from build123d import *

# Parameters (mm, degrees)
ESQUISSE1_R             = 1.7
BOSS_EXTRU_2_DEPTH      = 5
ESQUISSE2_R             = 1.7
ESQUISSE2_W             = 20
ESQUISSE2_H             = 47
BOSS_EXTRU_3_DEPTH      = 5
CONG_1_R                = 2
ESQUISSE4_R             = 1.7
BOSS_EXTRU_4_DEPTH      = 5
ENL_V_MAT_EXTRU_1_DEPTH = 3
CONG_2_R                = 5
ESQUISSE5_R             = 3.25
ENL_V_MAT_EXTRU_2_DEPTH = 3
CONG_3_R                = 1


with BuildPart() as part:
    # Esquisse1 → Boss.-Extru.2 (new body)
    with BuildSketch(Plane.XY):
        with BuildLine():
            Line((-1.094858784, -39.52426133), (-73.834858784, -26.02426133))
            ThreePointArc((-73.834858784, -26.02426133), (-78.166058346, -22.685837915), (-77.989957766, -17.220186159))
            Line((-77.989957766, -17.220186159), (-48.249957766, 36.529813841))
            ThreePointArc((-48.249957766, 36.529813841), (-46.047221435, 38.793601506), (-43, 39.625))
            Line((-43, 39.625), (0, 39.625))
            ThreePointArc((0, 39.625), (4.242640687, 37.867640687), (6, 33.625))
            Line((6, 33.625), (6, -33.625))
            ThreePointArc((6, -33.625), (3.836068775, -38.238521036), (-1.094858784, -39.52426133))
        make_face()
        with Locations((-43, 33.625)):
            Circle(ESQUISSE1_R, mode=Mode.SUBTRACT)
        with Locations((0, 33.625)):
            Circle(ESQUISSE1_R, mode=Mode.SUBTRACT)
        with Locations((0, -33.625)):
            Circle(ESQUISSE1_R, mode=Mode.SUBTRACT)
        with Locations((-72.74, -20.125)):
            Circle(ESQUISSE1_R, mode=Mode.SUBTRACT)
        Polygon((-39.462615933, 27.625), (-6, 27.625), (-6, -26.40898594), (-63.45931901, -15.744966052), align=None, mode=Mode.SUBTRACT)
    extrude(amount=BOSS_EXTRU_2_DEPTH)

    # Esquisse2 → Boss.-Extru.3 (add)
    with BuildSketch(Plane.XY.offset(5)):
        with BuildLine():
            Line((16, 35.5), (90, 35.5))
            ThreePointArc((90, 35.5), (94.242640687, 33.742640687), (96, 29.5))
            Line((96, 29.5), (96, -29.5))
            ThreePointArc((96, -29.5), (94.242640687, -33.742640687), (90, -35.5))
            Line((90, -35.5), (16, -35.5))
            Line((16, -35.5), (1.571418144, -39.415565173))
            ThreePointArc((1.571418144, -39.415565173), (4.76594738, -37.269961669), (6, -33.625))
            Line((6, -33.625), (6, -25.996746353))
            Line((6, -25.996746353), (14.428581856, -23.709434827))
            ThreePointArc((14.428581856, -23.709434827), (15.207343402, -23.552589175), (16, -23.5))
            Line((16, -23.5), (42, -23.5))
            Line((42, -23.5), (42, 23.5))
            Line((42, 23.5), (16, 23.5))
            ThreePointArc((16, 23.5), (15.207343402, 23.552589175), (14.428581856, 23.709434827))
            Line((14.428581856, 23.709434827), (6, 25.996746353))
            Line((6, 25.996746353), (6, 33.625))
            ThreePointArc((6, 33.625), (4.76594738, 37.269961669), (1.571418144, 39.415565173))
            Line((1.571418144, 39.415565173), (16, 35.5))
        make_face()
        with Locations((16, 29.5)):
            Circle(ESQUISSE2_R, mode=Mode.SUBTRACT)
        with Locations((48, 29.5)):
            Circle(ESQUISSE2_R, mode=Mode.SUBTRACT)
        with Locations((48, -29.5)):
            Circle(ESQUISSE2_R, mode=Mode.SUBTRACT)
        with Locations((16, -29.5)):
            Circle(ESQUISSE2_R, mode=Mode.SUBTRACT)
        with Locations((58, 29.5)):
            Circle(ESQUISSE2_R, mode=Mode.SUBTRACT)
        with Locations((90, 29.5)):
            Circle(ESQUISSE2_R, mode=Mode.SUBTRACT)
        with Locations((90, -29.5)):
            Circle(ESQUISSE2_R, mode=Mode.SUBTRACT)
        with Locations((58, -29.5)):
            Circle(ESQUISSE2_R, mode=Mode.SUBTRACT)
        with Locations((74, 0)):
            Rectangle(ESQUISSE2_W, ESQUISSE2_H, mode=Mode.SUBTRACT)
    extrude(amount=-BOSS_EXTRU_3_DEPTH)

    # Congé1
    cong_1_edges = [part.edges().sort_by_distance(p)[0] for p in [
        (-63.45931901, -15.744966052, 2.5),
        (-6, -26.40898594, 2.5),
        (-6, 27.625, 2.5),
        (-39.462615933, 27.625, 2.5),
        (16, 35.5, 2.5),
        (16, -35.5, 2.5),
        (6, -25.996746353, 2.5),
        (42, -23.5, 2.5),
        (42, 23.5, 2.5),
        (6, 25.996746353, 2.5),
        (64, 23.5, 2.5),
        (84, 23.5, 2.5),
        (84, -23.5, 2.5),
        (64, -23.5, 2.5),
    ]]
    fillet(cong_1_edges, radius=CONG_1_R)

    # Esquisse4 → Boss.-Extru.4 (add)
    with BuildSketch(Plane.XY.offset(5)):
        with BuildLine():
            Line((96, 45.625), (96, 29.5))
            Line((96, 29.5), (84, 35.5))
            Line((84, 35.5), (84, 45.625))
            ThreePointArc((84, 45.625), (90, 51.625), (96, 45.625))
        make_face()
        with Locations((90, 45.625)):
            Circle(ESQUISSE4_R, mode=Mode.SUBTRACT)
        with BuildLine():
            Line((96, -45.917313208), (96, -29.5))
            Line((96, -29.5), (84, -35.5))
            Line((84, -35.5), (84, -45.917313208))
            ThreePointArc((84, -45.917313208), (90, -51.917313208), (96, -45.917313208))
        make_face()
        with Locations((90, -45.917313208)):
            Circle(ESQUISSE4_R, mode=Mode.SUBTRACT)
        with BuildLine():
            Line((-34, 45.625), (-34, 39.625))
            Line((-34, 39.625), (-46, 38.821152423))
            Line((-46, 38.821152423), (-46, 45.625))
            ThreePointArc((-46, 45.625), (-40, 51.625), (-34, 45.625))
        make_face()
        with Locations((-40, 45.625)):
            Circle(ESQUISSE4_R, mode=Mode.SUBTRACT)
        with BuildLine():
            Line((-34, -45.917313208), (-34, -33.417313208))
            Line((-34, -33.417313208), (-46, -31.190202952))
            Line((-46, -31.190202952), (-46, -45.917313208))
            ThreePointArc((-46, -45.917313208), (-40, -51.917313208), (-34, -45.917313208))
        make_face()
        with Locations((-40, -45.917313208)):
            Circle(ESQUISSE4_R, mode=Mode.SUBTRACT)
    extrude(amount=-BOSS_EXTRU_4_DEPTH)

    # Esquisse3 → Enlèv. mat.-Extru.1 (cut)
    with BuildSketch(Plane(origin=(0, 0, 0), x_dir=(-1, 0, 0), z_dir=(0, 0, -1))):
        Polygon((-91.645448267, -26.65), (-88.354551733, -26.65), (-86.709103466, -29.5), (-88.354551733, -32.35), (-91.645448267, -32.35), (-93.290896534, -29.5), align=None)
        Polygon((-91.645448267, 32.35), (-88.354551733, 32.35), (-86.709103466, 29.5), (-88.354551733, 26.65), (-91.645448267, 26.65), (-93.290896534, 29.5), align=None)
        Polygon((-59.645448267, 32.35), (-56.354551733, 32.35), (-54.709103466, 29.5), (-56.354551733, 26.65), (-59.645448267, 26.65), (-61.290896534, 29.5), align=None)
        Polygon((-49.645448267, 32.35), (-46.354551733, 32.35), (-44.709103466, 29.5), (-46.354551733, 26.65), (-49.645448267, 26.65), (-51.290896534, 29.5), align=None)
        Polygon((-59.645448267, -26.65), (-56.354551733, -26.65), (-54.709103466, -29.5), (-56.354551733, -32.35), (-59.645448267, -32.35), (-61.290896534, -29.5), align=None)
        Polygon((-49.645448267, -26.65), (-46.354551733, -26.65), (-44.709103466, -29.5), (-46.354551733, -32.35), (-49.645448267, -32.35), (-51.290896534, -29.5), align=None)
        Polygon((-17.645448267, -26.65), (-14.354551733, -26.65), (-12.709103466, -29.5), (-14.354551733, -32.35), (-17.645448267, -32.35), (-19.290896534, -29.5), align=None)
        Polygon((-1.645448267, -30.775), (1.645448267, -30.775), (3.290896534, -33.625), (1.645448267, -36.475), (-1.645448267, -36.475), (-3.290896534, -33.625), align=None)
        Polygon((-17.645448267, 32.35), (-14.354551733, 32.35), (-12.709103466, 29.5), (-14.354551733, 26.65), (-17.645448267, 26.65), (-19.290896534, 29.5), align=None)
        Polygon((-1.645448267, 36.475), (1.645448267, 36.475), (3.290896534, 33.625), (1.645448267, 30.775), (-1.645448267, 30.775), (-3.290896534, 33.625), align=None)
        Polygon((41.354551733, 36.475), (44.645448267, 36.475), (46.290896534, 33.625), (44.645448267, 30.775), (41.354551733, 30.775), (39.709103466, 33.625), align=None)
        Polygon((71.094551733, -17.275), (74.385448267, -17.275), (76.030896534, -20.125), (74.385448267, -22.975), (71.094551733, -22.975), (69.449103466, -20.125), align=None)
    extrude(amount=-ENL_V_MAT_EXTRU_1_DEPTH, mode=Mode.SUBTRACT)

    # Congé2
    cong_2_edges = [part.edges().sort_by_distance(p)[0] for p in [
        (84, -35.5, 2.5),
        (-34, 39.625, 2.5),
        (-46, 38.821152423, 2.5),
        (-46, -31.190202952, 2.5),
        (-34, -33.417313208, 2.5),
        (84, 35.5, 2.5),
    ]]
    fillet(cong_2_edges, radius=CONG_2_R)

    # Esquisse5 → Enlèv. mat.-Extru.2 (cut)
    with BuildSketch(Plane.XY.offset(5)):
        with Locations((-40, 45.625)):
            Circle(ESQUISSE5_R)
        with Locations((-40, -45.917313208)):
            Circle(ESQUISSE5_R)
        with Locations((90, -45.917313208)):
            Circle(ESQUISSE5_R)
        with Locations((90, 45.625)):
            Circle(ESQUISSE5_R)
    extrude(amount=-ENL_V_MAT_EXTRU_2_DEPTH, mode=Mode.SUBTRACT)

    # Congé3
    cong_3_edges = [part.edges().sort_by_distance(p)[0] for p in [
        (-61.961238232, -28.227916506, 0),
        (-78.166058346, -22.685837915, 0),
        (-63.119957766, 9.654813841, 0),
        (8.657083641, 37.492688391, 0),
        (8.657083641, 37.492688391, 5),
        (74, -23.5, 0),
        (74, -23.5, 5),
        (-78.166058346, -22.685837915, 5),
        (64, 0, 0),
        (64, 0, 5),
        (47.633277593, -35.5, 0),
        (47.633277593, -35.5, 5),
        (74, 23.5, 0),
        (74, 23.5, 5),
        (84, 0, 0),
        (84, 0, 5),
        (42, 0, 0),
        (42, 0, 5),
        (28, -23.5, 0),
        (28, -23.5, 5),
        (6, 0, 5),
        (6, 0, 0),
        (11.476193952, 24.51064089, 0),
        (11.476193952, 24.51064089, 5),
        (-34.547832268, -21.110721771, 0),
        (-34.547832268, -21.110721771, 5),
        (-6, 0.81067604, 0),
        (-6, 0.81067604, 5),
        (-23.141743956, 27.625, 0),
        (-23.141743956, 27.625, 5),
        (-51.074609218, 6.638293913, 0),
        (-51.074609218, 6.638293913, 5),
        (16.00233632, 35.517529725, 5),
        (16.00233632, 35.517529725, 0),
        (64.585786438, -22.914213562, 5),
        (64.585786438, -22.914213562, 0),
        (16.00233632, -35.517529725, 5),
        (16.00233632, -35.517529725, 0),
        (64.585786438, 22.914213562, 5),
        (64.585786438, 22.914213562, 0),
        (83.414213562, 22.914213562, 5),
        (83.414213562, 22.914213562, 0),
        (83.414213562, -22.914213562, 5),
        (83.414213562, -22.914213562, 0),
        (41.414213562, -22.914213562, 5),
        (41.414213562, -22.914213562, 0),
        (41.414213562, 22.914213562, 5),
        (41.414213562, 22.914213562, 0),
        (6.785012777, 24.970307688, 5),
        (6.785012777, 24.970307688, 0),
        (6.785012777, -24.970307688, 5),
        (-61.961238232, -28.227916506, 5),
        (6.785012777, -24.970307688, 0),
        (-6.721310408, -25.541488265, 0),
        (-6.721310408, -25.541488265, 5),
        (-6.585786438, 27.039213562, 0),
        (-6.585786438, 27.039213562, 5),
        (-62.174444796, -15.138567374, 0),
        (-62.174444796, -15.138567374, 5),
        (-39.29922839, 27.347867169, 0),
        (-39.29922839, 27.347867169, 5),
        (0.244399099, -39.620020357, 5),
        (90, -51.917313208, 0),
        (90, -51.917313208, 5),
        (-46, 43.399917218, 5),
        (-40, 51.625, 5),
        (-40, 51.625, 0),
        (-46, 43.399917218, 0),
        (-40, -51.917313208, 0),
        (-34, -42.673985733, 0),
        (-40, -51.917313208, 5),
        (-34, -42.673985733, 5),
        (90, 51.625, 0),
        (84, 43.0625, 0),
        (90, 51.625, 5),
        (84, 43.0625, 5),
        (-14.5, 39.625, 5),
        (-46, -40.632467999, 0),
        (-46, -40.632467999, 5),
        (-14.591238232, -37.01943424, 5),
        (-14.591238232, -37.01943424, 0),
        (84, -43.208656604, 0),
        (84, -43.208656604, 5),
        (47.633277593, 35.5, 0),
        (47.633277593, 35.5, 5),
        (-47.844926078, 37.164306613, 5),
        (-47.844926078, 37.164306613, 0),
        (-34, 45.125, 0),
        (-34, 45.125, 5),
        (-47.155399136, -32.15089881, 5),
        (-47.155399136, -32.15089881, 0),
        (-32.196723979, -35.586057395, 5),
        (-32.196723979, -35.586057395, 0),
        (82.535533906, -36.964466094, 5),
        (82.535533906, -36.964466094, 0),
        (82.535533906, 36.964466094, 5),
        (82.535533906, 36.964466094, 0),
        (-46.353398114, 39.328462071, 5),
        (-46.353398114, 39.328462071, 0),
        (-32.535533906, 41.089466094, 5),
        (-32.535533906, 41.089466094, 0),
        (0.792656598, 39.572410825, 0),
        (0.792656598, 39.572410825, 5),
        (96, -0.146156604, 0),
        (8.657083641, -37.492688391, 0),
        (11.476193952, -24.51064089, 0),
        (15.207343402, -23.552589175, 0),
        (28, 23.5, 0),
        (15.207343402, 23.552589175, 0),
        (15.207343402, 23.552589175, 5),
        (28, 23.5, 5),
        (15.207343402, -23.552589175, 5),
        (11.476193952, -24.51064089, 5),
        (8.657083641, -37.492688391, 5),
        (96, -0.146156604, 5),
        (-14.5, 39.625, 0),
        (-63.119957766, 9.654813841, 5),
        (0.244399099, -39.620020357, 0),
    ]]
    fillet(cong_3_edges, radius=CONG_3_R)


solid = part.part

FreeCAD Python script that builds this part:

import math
import FreeCAD as App
import Part
import Sketcher

V = App.Vector
Q = App.Units.Quantity


def edges_at(feature, points):
    """Names of the edges that pass closest to the given points."""
    edges = feature.Shape.Edges
    near = lambda p: min(range(len(edges)), key=lambda i: edges[i].distToShape(Part.Vertex(*p))[0])
    return sorted({f"Edge{near(p) + 1}" for p in points})

doc = App.newDocument("Part")
body = doc.addObject("PartDesign::Body", "Body")

sketch1 = body.newObject("Sketcher::SketchObject", "Sketch")
sketch1.AttachmentSupport = (doc.getObject("XY_Plane"), [""])
sketch1.MapMode = "FlatFace"
sketch1.addGeometry([
    Part.LineSegment(V(-73.834859, -26.024261, 0), V(-1.094859, -39.524261, 0)),
    Part.ArcOfCircle(Part.Circle(V(0, -33.625, 0), V(0, 0, 1), 6), math.radians(-100.51404), math.radians(0)),
    Part.LineSegment(V(6, -33.625, 0), V(6, 33.625, 0)),
    Part.ArcOfCircle(Part.Circle(V(0, 33.625, 0), V(0, 0, 1), 6), math.radians(0), math.radians(90)),
    Part.LineSegment(V(0, 39.625, 0), V(-43, 39.625, 0)),
    Part.ArcOfCircle(Part.Circle(V(-43, 33.625, 0), V(0, 0, 1), 6), math.radians(90), math.radians(151.044143)),
    Part.LineSegment(V(-48.249958, 36.529814, 0), V(-77.989958, -17.220186, 0)),
    Part.ArcOfCircle(Part.Circle(V(-72.74, -20.125, 0), V(0, 0, 1), 6), math.radians(151.044143), math.radians(259.48596)),
    Part.Circle(V(0, -33.625, 0), V(0, 0, 1), 1.7),
    Part.Circle(V(-72.74, -20.125, 0), V(0, 0, 1), 1.7),
    Part.LineSegment(V(-39.462616, 27.625, 0), V(-6, 27.625, 0)),
    Part.LineSegment(V(-6, 27.625, 0), V(-6, -26.408986, 0)),
    Part.LineSegment(V(-6, -26.408986, 0), V(-63.459319, -15.744966, 0)),
    Part.LineSegment(V(-63.459319, -15.744966, 0), V(-39.462616, 27.625, 0)),
    Part.Circle(V(0, 33.625, 0), V(0, 0, 1), 1.7),
    Part.Circle(V(-43, 33.625, 0), V(0, 0, 1), 1.7),
], False)
sketch1.addConstraint([
    Sketcher.Constraint("Tangent", 0, 2, 1, 1),
    Sketcher.Constraint("Tangent", 1, 2, 2, 1),
    Sketcher.Constraint("Tangent", 2, 2, 3, 1),
    Sketcher.Constraint("Tangent", 3, 2, 4, 1),
    Sketcher.Constraint("Tangent", 4, 2, 5, 1),
    Sketcher.Constraint("Tangent", 5, 2, 6, 1),
    Sketcher.Constraint("Tangent", 6, 2, 7, 1),
    Sketcher.Constraint("Tangent", 7, 2, 0, 1),
    Sketcher.Constraint("Coincident", 10, 2, 11, 1),
    Sketcher.Constraint("Coincident", 11, 2, 12, 1),
    Sketcher.Constraint("Coincident", 12, 2, 13, 1),
    Sketcher.Constraint("Coincident", 13, 2, 10, 1),
    Sketcher.Constraint("Vertical", 2),
    Sketcher.Constraint("Horizontal", 4),
    Sketcher.Constraint("Horizontal", 10),
    Sketcher.Constraint("Vertical", 11),
    Sketcher.Constraint("Coincident", 8, 3, 1, 3),
    Sketcher.Constraint("Coincident", 9, 3, 7, 3),
    Sketcher.Constraint("Coincident", 14, 3, 3, 3),
    Sketcher.Constraint("Coincident", 15, 3, 5, 3),
    Sketcher.Constraint("Equal", 1, 3),
    Sketcher.Constraint("Equal", 3, 5),
    Sketcher.Constraint("Equal", 5, 7),
    Sketcher.Constraint("Equal", 8, 9),
    Sketcher.Constraint("Equal", 9, 14),
    Sketcher.Constraint("Equal", 14, 15),
    Sketcher.Constraint("Symmetric", 1, 3, 3, 3, -1, 1),
    Sketcher.Constraint("Parallel", 0, 12),
    Sketcher.Constraint("Parallel", 6, 13),
    Sketcher.Constraint("Radius", 1, Q("6 mm")),
    Sketcher.Constraint("Diameter", 8, Q("3.4 mm")),
    Sketcher.Constraint("DistanceX", 4, 2, 4, 1, Q("43 mm")),
    Sketcher.Constraint("DistanceX", 10, 2, -1, 1, Q("6 mm")),
    Sketcher.Constraint("DistanceY", 10, 2, 3, 3, Q("6 mm")),
    Sketcher.Constraint("DistanceY", 2, 1, 2, 2, Q("67.25 mm")),
    Sketcher.Constraint("DistanceY", 1, 3, 7, 3, Q("13.5 mm")),
    Sketcher.Constraint("DistanceX", 7, 3, -1, 1, Q("72.74 mm")),
    Sketcher.Constraint("DistanceX", 10, 1, 10, 2, Q("33.462616 mm")),
    Sketcher.Constraint("DistanceY", 11, 2, 11, 1, Q("54.033986 mm")),
])
pad1 = body.newObject("PartDesign::Pad", "Pad")
pad1.Profile = sketch1
pad1.Length = 5

sketch2 = body.newObject("Sketcher::SketchObject", "Sketch001")
sketch2.AttachmentSupport = (doc.getObject("XY_Plane"), [""])
sketch2.MapMode = "FlatFace"
sketch2.AttachmentOffset = App.Placement(V(0, 0, 5), App.Rotation())
sketch2.addGeometry([
    Part.LineSegment(V(90, 35.5, 0), V(16, 35.5, 0)),
    Part.LineSegment(V(16, 35.5, 0), V(1.571418, 39.415565, 0)),
    Part.ArcOfCircle(Part.Circle(V(0, 33.625, 0), V(0, 0, 1), 6), math.radians(0), math.radians(74.816989)),
    Part.LineSegment(V(6, 33.625, 0), V(6, 25.996746, 0)),
    Part.LineSegment(V(6, 25.996746, 0), V(14.428582, 23.709435, 0)),
    Part.ArcOfCircle(Part.Circle(V(16, 29.5, 0), V(0, 0, 1), 6), math.radians(-105.183011), math.radians(-90)),
    Part.LineSegment(V(16, 23.5, 0), V(42, 23.5, 0)),
    Part.LineSegment(V(42, 23.5, 0), V(42, -23.5, 0)),
    Part.LineSegment(V(42, -23.5, 0), V(16, -23.5, 0)),
    Part.ArcOfCircle(Part.Circle(V(16, -29.5, 0), V(0, 0, 1), 6), math.radians(90), math.radians(105.183011)),
    Part.LineSegment(V(14.428582, -23.709435, 0), V(6, -25.996746, 0)),
    Part.LineSegment(V(6, -25.996746, 0), V(6, -33.625, 0)),
    Part.ArcOfCircle(Part.Circle(V(0, -33.625, 0), V(0, 0, 1), 6), math.radians(-74.816989), math.radians(0)),
    Part.LineSegment(V(1.571418, -39.415565, 0), V(16, -35.5, 0)),
    Part.LineSegment(V(16, -35.5, 0), V(90, -35.5, 0)),
    Part.ArcOfCircle(Part.Circle(V(90, -29.5, 0), V(0, 0, 1), 6), math.radians(-90), math.radians(0)),
    Part.LineSegment(V(96, -29.5, 0), V(96, 29.5, 0)),
    Part.ArcOfCircle(Part.Circle(V(90, 29.5, 0), V(0, 0, 1), 6), math.radians(0), math.radians(90)),
    Part.Circle(V(90, -29.5, 0), V(0, 0, 1), 1.7),
    Part.Circle(V(58, -29.5, 0), V(0, 0, 1), 1.7),
    Part.Circle(V(48, -29.5, 0), V(0, 0, 1), 1.7),
    Part.Circle(V(16, -29.5, 0), V(0, 0, 1), 1.7),
    Part.LineSegment(V(64, -23.5, 0), V(64, 23.5, 0)),
    Part.LineSegment(V(64, 23.5, 0), V(84, 23.5, 0)),
    Part.LineSegment(V(84, 23.5, 0), V(84, -23.5, 0)),
    Part.LineSegment(V(84, -23.5, 0), V(64, -23.5, 0)),
    Part.Circle(V(90, 29.5, 0), V(0, 0, 1), 1.7),
    Part.Circle(V(58, 29.5, 0), V(0, 0, 1), 1.7),
    Part.Circle(V(48, 29.5, 0), V(0, 0, 1), 1.7),
    Part.Circle(V(16, 29.5, 0), V(0, 0, 1), 1.7),
], False)
sketch2.addConstraint([
    Sketcher.Constraint("Coincident", 0, 2, 1, 1),
    Sketcher.Constraint("Tangent", 1, 2, 2, 2),
    Sketcher.Constraint("Tangent", 2, 1, 3, 1),
    Sketcher.Constraint("Coincident", 3, 2, 4, 1),
    Sketcher.Constraint("Tangent", 4, 2, 5, 1),
    Sketcher.Constraint("Tangent", 5, 2, 6, 1),
    Sketcher.Constraint("Coincident", 6, 2, 7, 1),
    Sketcher.Constraint("Coincident", 7, 2, 8, 1),
    Sketcher.Constraint("Tangent", 8, 2, 9, 1),
    Sketcher.Constraint("Tangent", 9, 2, 10, 1),
    Sketcher.Constraint("Coincident", 10, 2, 11, 1),
    Sketcher.Constraint("Tangent", 11, 2, 12, 2),
    Sketcher.Constraint("Tangent", 12, 1, 13, 1),
    Sketcher.Constraint("Coincident", 13, 2, 14, 1),
    Sketcher.Constraint("Tangent", 14, 2, 15, 1),
    Sketcher.Constraint("Tangent", 15, 2, 16, 1),
    Sketcher.Constraint("Tangent", 16, 2, 17, 1),
    Sketcher.Constraint("Tangent", 17, 2, 0, 1),
    Sketcher.Constraint("Coincident", 22, 2, 23, 1),
    Sketcher.Constraint("Coincident", 23, 2, 24, 1),
    Sketcher.Constraint("Coincident", 24, 2, 25, 1),
    Sketcher.Constraint("Coincident", 25, 2, 22, 1),
    Sketcher.Constraint("Horizontal", 0),
    Sketcher.Constraint("Vertical", 3),
    Sketcher.Constraint("Horizontal", 6),
    Sketcher.Constraint("Vertical", 7),
    Sketcher.Constraint("Horizontal", 8),
    Sketcher.Constraint("Vertical", 11),
    Sketcher.Constraint("Horizontal", 14),
    Sketcher.Constraint("Vertical", 16),
    Sketcher.Constraint("Vertical", 22),
    Sketcher.Constraint("Horizontal", 23),
    Sketcher.Constraint("Vertical", 24),
    Sketcher.Constraint("Horizontal", 25),
    Sketcher.Constraint("Coincident", 18, 3, 15, 3),
    Sketcher.Constraint("Coincident", 21, 3, 9, 3),
    Sketcher.Constraint("Coincident", 26, 3, 17, 3),
    Sketcher.Constraint("Coincident", 29, 3, 5, 3),
    Sketcher.Constraint("Equal", 2, 5),
    Sketcher.Constraint("Equal", 5, 9),
    Sketcher.Constraint("Equal", 9, 12),
    Sketcher.Constraint("Equal", 12, 15),
    Sketcher.Constraint("Equal", 15, 17),
    Sketcher.Constraint("Equal", 18, 19),
    Sketcher.Constraint("Equal", 19, 20),
    Sketcher.Constraint("Equal", 20, 21),
    Sketcher.Constraint("Equal", 21, 26),
    Sketcher.Constraint("Equal", 26, 27),
    Sketcher.Constraint("Equal", 27, 28),
    Sketcher.Constraint("Equal", 28, 29),
    Sketcher.Constraint("Symmetric", 2, 3, 12, 3, -1, 1),
    Sketcher.Constraint("Symmetric", 5, 3, 9, 3, -1),
    Sketcher.Constraint("Symmetric", 19, 3, 27, 3, -1),
    Sketcher.Constraint("Symmetric", 20, 3, 28, 3, -1),
    Sketcher.Constraint("Symmetric", 3, 2, 10, 2, -1),
    Sketcher.Constraint("Symmetric", 0, 2, 13, 2, -1),
    Sketcher.Constraint("Parallel", 1, 4),
    Sketcher.Constraint("Horizontal", 9, 3, 15, 3),
    Sketcher.Constraint("Horizontal", 18, 3, 19, 3),
    Sketcher.Constraint("Horizontal", 19, 3, 20, 3),
    Sketcher.Constraint("Horizontal", 6, 2, 22, 2),
    Sketcher.Constraint("Horizontal", 8, 2, 24, 2),
    Sketcher.Constraint("Vertical", 29, 3, 0, 2),
    Sketcher.Constraint("Radius", 2, Q("6 mm")),
    Sketcher.Constraint("Diameter", 18, Q("3.4 mm")),
    Sketcher.Constraint("DistanceX", 0, 2, 0, 1, Q("74 mm")),
    Sketcher.Constraint("DistanceX", 6, 1, 6, 2, Q("26 mm")),
    Sketcher.Constraint("DistanceX", 23, 1, 23, 2, Q("20 mm")),
    Sketcher.Constraint("DistanceY", 7, 2, 7, 1, Q("47 mm")),
    Sketcher.Constraint("DistanceX", -1, 1, 5, 3, Q("16 mm")),
    Sketcher.Constraint("DistanceX", -1, 1, 19, 3, Q("58 mm")),
    Sketcher.Constraint("DistanceX", -1, 1, 20, 3, Q("48 mm")),
    Sketcher.Constraint("DistanceX", -1, 1, 22, 2, Q("64 mm")),
    Sketcher.Constraint("DistanceY", 12, 3, 2, 3, Q("67.25 mm")),
])
pad2 = body.newObject("PartDesign::Pad", "Pad001")
pad2.Profile = sketch2
pad2.Length = 5
pad2.Reversed = True
doc.recompute()

fillet = body.newObject("PartDesign::Fillet", "Fillet")
fillet.Base = (pad2, edges_at(pad2, [
    (-63.459, -15.745, 2.5),
    (-6, -26.409, 2.5),
    (-6, 27.625, 2.5),
    (-39.463, 27.625, 2.5),
    (16, 35.5, 2.5),
    (16, -35.5, 2.5),
    (6, -25.997, 2.5),
    (42, -23.5, 2.5),
    (42, 23.5, 2.5),
    (6, 25.997, 2.5),
    (64, 23.5, 2.5),
    (84, 23.5, 2.5),
    (84, -23.5, 2.5),
    (64, -23.5, 2.5),
]))
fillet.Radius = 2

sketch3 = body.newObject("Sketcher::SketchObject", "Sketch002")
sketch3.AttachmentSupport = (doc.getObject("XY_Plane"), [""])
sketch3.MapMode = "FlatFace"
sketch3.AttachmentOffset = App.Placement(V(0, 0, 5), App.Rotation())
sketch3.addGeometry([
    Part.LineSegment(V(96, 29.5, 0), V(96, 45.625, 0)),
    Part.ArcOfCircle(Part.Circle(V(90, 45.625, 0), V(0, 0, 1), 6), math.radians(0), math.radians(180)),
    Part.LineSegment(V(84, 45.625, 0), V(84, 35.5, 0)),
    Part.LineSegment(V(84, 35.5, 0), V(96, 29.5, 0)),
    Part.Circle(V(90, 45.625, 0), V(0, 0, 1), 1.7),
    Part.LineSegment(V(96, -45.917313, 0), V(96, -29.5, 0)),
    Part.LineSegment(V(96, -29.5, 0), V(84, -35.5, 0)),
    Part.LineSegment(V(84, -35.5, 0), V(84, -45.917313, 0)),
    Part.ArcOfCircle(Part.Circle(V(90, -45.917313, 0), V(0, 0, 1), 6), math.radians(180), math.radians(360)),
    Part.Circle(V(90, -45.917313, 0), V(0, 0, 1), 1.7),
    Part.LineSegment(V(-34, 39.625, 0), V(-34, 45.625, 0)),
    Part.ArcOfCircle(Part.Circle(V(-40, 45.625, 0), V(0, 0, 1), 6), math.radians(0), math.radians(180)),
    Part.LineSegment(V(-46, 45.625, 0), V(-46, 38.821152, 0)),
    Part.LineSegment(V(-46, 38.821152, 0), V(-34, 39.625, 0)),
    Part.Circle(V(-40, 45.625, 0), V(0, 0, 1), 1.7),
    Part.LineSegment(V(-34, -45.917313, 0), V(-34, -33.417313, 0)),
    Part.LineSegment(V(-34, -33.417313, 0), V(-46, -31.190203, 0)),
    Part.LineSegment(V(-46, -31.190203, 0), V(-46, -45.917313, 0)),
    Part.ArcOfCircle(Part.Circle(V(-40, -45.917313, 0), V(0, 0, 1), 6), math.radians(180), math.radians(360)),
    Part.Circle(V(-40, -45.917313, 0), V(0, 0, 1), 1.7),
], False)
sketch3.addConstraint([
    Sketcher.Constraint("Tangent", 0, 2, 1, 1),
    Sketcher.Constraint("Tangent", 1, 2, 2, 1),
    Sketcher.Constraint("Coincident", 2, 2, 3, 1),
    Sketcher.Constraint("Coincident", 3, 2, 0, 1),
    Sketcher.Constraint("Coincident", 5, 2, 6, 1),
    Sketcher.Constraint("Coincident", 6, 2, 7, 1),
    Sketcher.Constraint("Tangent", 7, 2, 8, 1),
    Sketcher.Constraint("Tangent", 8, 2, 5, 1),
    Sketcher.Constraint("Tangent", 10, 2, 11, 1),
    Sketcher.Constraint("Tangent", 11, 2, 12, 1),
    Sketcher.Constraint("Coincident", 12, 2, 13, 1),
    Sketcher.Constraint("Coincident", 13, 2, 10, 1),
    Sketcher.Constraint("Coincident", 15, 2, 16, 1),
    Sketcher.Constraint("Coincident", 16, 2, 17, 1),
    Sketcher.Constraint("Tangent", 17, 2, 18, 1),
    Sketcher.Constraint("Tangent", 18, 2, 15, 1),
    Sketcher.Constraint("Vertical", 0),
    Sketcher.Constraint("Vertical", 2),
    Sketcher.Constraint("Vertical", 5),
    Sketcher.Constraint("Vertical", 7),
    Sketcher.Constraint("Vertical", 10),
    Sketcher.Constraint("Vertical", 12),
    Sketcher.Constraint("Vertical", 15),
    Sketcher.Constraint("Vertical", 17),
    Sketcher.Constraint("Coincident", 4, 3, 1, 3),
    Sketcher.Constraint("Coincident", 9, 3, 8, 3),
    Sketcher.Constraint("Coincident", 14, 3, 11, 3),
    Sketcher.Constraint("Coincident", 19, 3, 18, 3),
    Sketcher.Constraint("Equal", 1, 8),
    Sketcher.Constraint("Equal", 4, 9),
    Sketcher.Constraint("Equal", 8, 11),
    Sketcher.Constraint("Equal", 9, 14),
    Sketcher.Constraint("Equal", 11, 18),
    Sketcher.Constraint("Equal", 14, 19),
    Sketcher.Constraint("Symmetric", 3, 2, 5, 2, -1),
    Sketcher.Constraint("Horizontal", 4, 3, 11, 3),
    Sketcher.Constraint("Horizontal", 9, 3, 18, 3),
    Sketcher.Constraint("Vertical", 14, 3, 18, 3),
    Sketcher.Constraint("Equal", 3, 6),
    Sketcher.Constraint("Radius", 1, Q("6 mm")),
    Sketcher.Constraint("Diameter", 4, Q("3.4 mm")),
    Sketcher.Constraint("DistanceY", 10, 1, 10, 2, Q("6 mm")),
    Sketcher.Constraint("DistanceY", 15, 1, 15, 2, Q("12.5 mm")),
    Sketcher.Constraint("DistanceX", -1, 1, 1, 3, Q("90 mm")),
    Sketcher.Constraint("DistanceX", 11, 3, -1, 1, Q("40 mm")),
    Sketcher.Constraint("DistanceY", 3, 2, 2, 2, Q("6 mm")),
    Sketcher.Constraint("DistanceY", 5, 2, 3, 2, Q("59 mm")),
    Sketcher.Constraint("DistanceY", 0, 1, 0, 2, Q("16.125 mm")),
    Sketcher.Constraint("DistanceY", 17, 2, 17, 1, Q("14.72711 mm")),
    Sketcher.Constraint("DistanceY", 5, 1, 5, 2, Q("16.417313 mm")),
    Sketcher.Constraint("DistanceY", 12, 2, 12, 1, Q("6.803848 mm")),
])
pad3 = body.newObject("PartDesign::Pad", "Pad002")
pad3.Profile = sketch3
pad3.Length = 5
pad3.Reversed = True

sketch4 = body.newObject("Sketcher::SketchObject", "Sketch003")
sketch4.AttachmentSupport = (doc.getObject("XY_Plane"), [""])
sketch4.MapMode = "FlatFace"
sketch4.addGeometry([
    Part.LineSegment(V(88.354552, -26.65, 0), V(91.645448, -26.65, 0)),
    Part.LineSegment(V(91.645448, -26.65, 0), V(93.290897, -29.5, 0)),
    Part.LineSegment(V(93.290897, -29.5, 0), V(91.645448, -32.35, 0)),
    Part.LineSegment(V(91.645448, -32.35, 0), V(88.354552, -32.35, 0)),
    Part.LineSegment(V(88.354552, -32.35, 0), V(86.709103, -29.5, 0)),
    Part.LineSegment(V(86.709103, -29.5, 0), V(88.354552, -26.65, 0)),
    Part.LineSegment(V(88.354552, 32.35, 0), V(91.645448, 32.35, 0)),
    Part.LineSegment(V(91.645448, 32.35, 0), V(93.290897, 29.5, 0)),
    Part.LineSegment(V(93.290897, 29.5, 0), V(91.645448, 26.65, 0)),
    Part.LineSegment(V(91.645448, 26.65, 0), V(88.354552, 26.65, 0)),
    Part.LineSegment(V(88.354552, 26.65, 0), V(86.709103, 29.5, 0)),
    Part.LineSegment(V(86.709103, 29.5, 0), V(88.354552, 32.35, 0)),
    Part.LineSegment(V(56.354552, 32.35, 0), V(59.645448, 32.35, 0)),
    Part.LineSegment(V(59.645448, 32.35, 0), V(61.290897, 29.5, 0)),
    Part.LineSegment(V(61.290897, 29.5, 0), V(59.645448, 26.65, 0)),
    Part.LineSegment(V(59.645448, 26.65, 0), V(56.354552, 26.65, 0)),
    Part.LineSegment(V(56.354552, 26.65, 0), V(54.709103, 29.5, 0)),
    Part.LineSegment(V(54.709103, 29.5, 0), V(56.354552, 32.35, 0)),
    Part.LineSegment(V(46.354552, 32.35, 0), V(49.645448, 32.35, 0)),
    Part.LineSegment(V(49.645448, 32.35, 0), V(51.290897, 29.5, 0)),
    Part.LineSegment(V(51.290897, 29.5, 0), V(49.645448, 26.65, 0)),
    Part.LineSegment(V(49.645448, 26.65, 0), V(46.354552, 26.65, 0)),
    Part.LineSegment(V(46.354552, 26.65, 0), V(44.709103, 29.5, 0)),
    Part.LineSegment(V(44.709103, 29.5, 0), V(46.354552, 32.35, 0)),
    Part.LineSegment(V(56.354552, -26.65, 0), V(59.645448, -26.65, 0)),
    Part.LineSegment(V(59.645448, -26.65, 0), V(61.290897, -29.5, 0)),
    Part.LineSegment(V(61.290897, -29.5, 0), V(59.645448, -32.35, 0)),
    Part.LineSegment(V(59.645448, -32.35, 0), V(56.354552, -32.35, 0)),
    Part.LineSegment(V(56.354552, -32.35, 0), V(54.709103, -29.5, 0)),
    Part.LineSegment(V(54.709103, -29.5, 0), V(56.354552, -26.65, 0)),
    Part.LineSegment(V(46.354552, -26.65, 0), V(49.645448, -26.65, 0)),
    Part.LineSegment(V(49.645448, -26.65, 0), V(51.290897, -29.5, 0)),
    Part.LineSegment(V(51.290897, -29.5, 0), V(49.645448, -32.35, 0)),
    Part.LineSegment(V(49.645448, -32.35, 0), V(46.354552, -32.35, 0)),
    Part.LineSegment(V(46.354552, -32.35, 0), V(44.709103, -29.5, 0)),
    Part.LineSegment(V(44.709103, -29.5, 0), V(46.354552, -26.65, 0)),
    Part.LineSegment(V(14.354552, -26.65, 0), V(17.645448, -26.65, 0)),
    Part.LineSegment(V(17.645448, -26.65, 0), V(19.290897, -29.5, 0)),
    Part.LineSegment(V(19.290897, -29.5, 0), V(17.645448, -32.35, 0)),
    Part.LineSegment(V(17.645448, -32.35, 0), V(14.354552, -32.35, 0)),
    Part.LineSegment(V(14.354552, -32.35, 0), V(12.709103, -29.5, 0)),
    Part.LineSegment(V(12.709103, -29.5, 0), V(14.354552, -26.65, 0)),
    Part.LineSegment(V(-1.645448, -30.775, 0), V(1.645448, -30.775, 0)),
    Part.LineSegment(V(1.645448, -30.775, 0), V(3.290897, -33.625, 0)),
    Part.LineSegment(V(3.290897, -33.625, 0), V(1.645448, -36.475, 0)),
    Part.LineSegment(V(1.645448, -36.475, 0), V(-1.645448, -36.475, 0)),
    Part.LineSegment(V(-1.645448, -36.475, 0), V(-3.290897, -33.625, 0)),
    Part.LineSegment(V(-3.290897, -33.625, 0), V(-1.645448, -30.775, 0)),
    Part.LineSegment(V(14.354552, 32.35, 0), V(17.645448, 32.35, 0)),
    Part.LineSegment(V(17.645448, 32.35, 0), V(19.290897, 29.5, 0)),
    Part.LineSegment(V(19.290897, 29.5, 0), V(17.645448, 26.65, 0)),
    Part.LineSegment(V(17.645448, 26.65, 0), V(14.354552, 26.65, 0)),
    Part.LineSegment(V(14.354552, 26.65, 0), V(12.709103, 29.5, 0)),
    Part.LineSegment(V(12.709103, 29.5, 0), V(14.354552, 32.35, 0)),
    Part.LineSegment(V(-1.645448, 36.475, 0), V(1.645448, 36.475, 0)),
    Part.LineSegment(V(1.645448, 36.475, 0), V(3.290897, 33.625, 0)),
    Part.LineSegment(V(3.290897, 33.625, 0), V(1.645448, 30.775, 0)),
    Part.LineSegment(V(1.645448, 30.775, 0), V(-1.645448, 30.775, 0)),
    Part.LineSegment(V(-1.645448, 30.775, 0), V(-3.290897, 33.625, 0)),
    Part.LineSegment(V(-3.290897, 33.625, 0), V(-1.645448, 36.475, 0)),
    Part.LineSegment(V(-44.645448, 36.475, 0), V(-41.354552, 36.475, 0)),
    Part.LineSegment(V(-41.354552, 36.475, 0), V(-39.709103, 33.625, 0)),
    Part.LineSegment(V(-39.709103, 33.625, 0), V(-41.354552, 30.775, 0)),
    Part.LineSegment(V(-41.354552, 30.775, 0), V(-44.645448, 30.775, 0)),
    Part.LineSegment(V(-44.645448, 30.775, 0), V(-46.290897, 33.625, 0)),
    Part.LineSegment(V(-46.290897, 33.625, 0), V(-44.645448, 36.475, 0)),
    Part.LineSegment(V(-74.385448, -17.275, 0), V(-71.094552, -17.275, 0)),
    Part.LineSegment(V(-71.094552, -17.275, 0), V(-69.449103, -20.125, 0)),
    Part.LineSegment(V(-69.449103, -20.125, 0), V(-71.094552, -22.975, 0)),
    Part.LineSegment(V(-71.094552, -22.975, 0), V(-74.385448, -22.975, 0)),
    Part.LineSegment(V(-74.385448, -22.975, 0), V(-76.030897, -20.125, 0)),
    Part.LineSegment(V(-76.030897, -20.125, 0), V(-74.385448, -17.275, 0)),
], False)
sketch4.addConstraint([
    Sketcher.Constraint("Coincident", 0, 2, 1, 1),
    Sketcher.Constraint("Coincident", 1, 2, 2, 1),
    Sketcher.Constraint("Coincident", 2, 2, 3, 1),
    Sketcher.Constraint("Coincident", 3, 2, 4, 1),
    Sketcher.Constraint("Coincident", 4, 2, 5, 1),
    Sketcher.Constraint("Coincident", 5, 2, 0, 1),
    Sketcher.Constraint("Coincident", 6, 2, 7, 1),
    Sketcher.Constraint("Coincident", 7, 2, 8, 1),
    Sketcher.Constraint("Coincident", 8, 2, 9, 1),
    Sketcher.Constraint("Coincident", 9, 2, 10, 1),
    Sketcher.Constraint("Coincident", 10, 2, 11, 1),
    Sketcher.Constraint("Coincident", 11, 2, 6, 1),
    Sketcher.Constraint("Coincident", 12, 2, 13, 1),
    Sketcher.Constraint("Coincident", 13, 2, 14, 1),
    Sketcher.Constraint("Coincident", 14, 2, 15, 1),
    Sketcher.Constraint("Coincident", 15, 2, 16, 1),
    Sketcher.Constraint("Coincident", 16, 2, 17, 1),
    Sketcher.Constraint("Coincident", 17, 2, 12, 1),
    Sketcher.Constraint("Coincident", 18, 2, 19, 1),
    Sketcher.Constraint("Coincident", 19, 2, 20, 1),
    Sketcher.Constraint("Coincident", 20, 2, 21, 1),
    Sketcher.Constraint("Coincident", 21, 2, 22, 1),
    Sketcher.Constraint("Coincident", 22, 2, 23, 1),
    Sketcher.Constraint("Coincident", 23, 2, 18, 1),
    Sketcher.Constraint("Coincident", 24, 2, 25, 1),
    Sketcher.Constraint("Coincident", 25, 2, 26, 1),
    Sketcher.Constraint("Coincident", 26, 2, 27, 1),
    Sketcher.Constraint("Coincident", 27, 2, 28, 1),
    Sketcher.Constraint("Coincident", 28, 2, 29, 1),
    Sketcher.Constraint("Coincident", 29, 2, 24, 1),
    Sketcher.Constraint("Coincident", 30, 2, 31, 1),
    Sketcher.Constraint("Coincident", 31, 2, 32, 1),
    Sketcher.Constraint("Coincident", 32, 2, 33, 1),
    Sketcher.Constraint("Coincident", 33, 2, 34, 1),
    Sketcher.Constraint("Coincident", 34, 2, 35, 1),
    Sketcher.Constraint("Coincident", 35, 2, 30, 1),
    Sketcher.Constraint("Coincident", 36, 2, 37, 1),
    Sketcher.Constraint("Coincident", 37, 2, 38, 1),
    Sketcher.Constraint("Coincident", 38, 2, 39, 1),
    Sketcher.Constraint("Coincident", 39, 2, 40, 1),
    Sketcher.Constraint("Coincident", 40, 2, 41, 1),
    Sketcher.Constraint("Coincident", 41, 2, 36, 1),
    Sketcher.Constraint("Coincident", 42, 2, 43, 1),
    Sketcher.Constraint("Coincident", 43, 2, 44, 1),
    Sketcher.Constraint("Coincident", 44, 2, 45, 1),
    Sketcher.Constraint("Coincident", 45, 2, 46, 1),
    Sketcher.Constraint("Coincident", 46, 2, 47, 1),
    Sketcher.Constraint("Coincident", 47, 2, 42, 1),
    Sketcher.Constraint("Coincident", 48, 2, 49, 1),
    Sketcher.Constraint("Coincident", 49, 2, 50, 1),
    Sketcher.Constraint("Coincident", 50, 2, 51, 1),
    Sketcher.Constraint("Coincident", 51, 2, 52, 1),
    Sketcher.Constraint("Coincident", 52, 2, 53, 1),
    Sketcher.Constraint("Coincident", 53, 2, 48, 1),
    Sketcher.Constraint("Coincident", 54, 2, 55, 1),
    Sketcher.Constraint("Coincident", 55, 2, 56, 1),
    Sketcher.Constraint("Coincident", 56, 2, 57, 1),
    Sketcher.Constraint("Coincident", 57, 2, 58, 1),
    Sketcher.Constraint("Coincident", 58, 2, 59, 1),
    Sketcher.Constraint("Coincident", 59, 2, 54, 1),
    Sketcher.Constraint("Coincident", 60, 2, 61, 1),
    Sketcher.Constraint("Coincident", 61, 2, 62, 1),
    Sketcher.Constraint("Coincident", 62, 2, 63, 1),
    Sketcher.Constraint("Coincident", 63, 2, 64, 1),
    Sketcher.Constraint("Coincident", 64, 2, 65, 1),
    Sketcher.Constraint("Coincident", 65, 2, 60, 1),
    Sketcher.Constraint("Coincident", 66, 2, 67, 1),
    Sketcher.Constraint("Coincident", 67, 2, 68, 1),
    Sketcher.Constraint("Coincident", 68, 2, 69, 1),
    Sketcher.Constraint("Coincident", 69, 2, 70, 1),
    Sketcher.Constraint("Coincident", 70, 2, 71, 1),
    Sketcher.Constraint("Coincident", 71, 2, 66, 1),
    Sketcher.Constraint("Horizontal", 0),
    Sketcher.Constraint("Horizontal", 3),
    Sketcher.Constraint("Horizontal", 6),
    Sketcher.Constraint("Horizontal", 9),
    Sketcher.Constraint("Horizontal", 12),
    Sketcher.Constraint("Horizontal", 15),
    Sketcher.Constraint("Horizontal", 18),
    Sketcher.Constraint("Horizontal", 21),
    Sketcher.Constraint("Horizontal", 24),
    Sketcher.Constraint("Horizontal", 27),
    Sketcher.Constraint("Horizontal", 30),
    Sketcher.Constraint("Horizontal", 33),
    Sketcher.Constraint("Horizontal", 36),
    Sketcher.Constraint("Horizontal", 39),
    Sketcher.Constraint("Horizontal", 42),
    Sketcher.Constraint("Horizontal", 45),
    Sketcher.Constraint("Horizontal", 48),
    Sketcher.Constraint("Horizontal", 51),
    Sketcher.Constraint("Horizontal", 54),
    Sketcher.Constraint("Horizontal", 57),
    Sketcher.Constraint("Horizontal", 60),
    Sketcher.Constraint("Horizontal", 63),
    Sketcher.Constraint("Horizontal", 66),
    Sketcher.Constraint("Horizontal", 69),
    Sketcher.Constraint("Symmetric", 45, 2, 54, 2, -1, 1),
    Sketcher.Constraint("Symmetric", 46, 2, 55, 2, -1, 1),
    Sketcher.Constraint("Symmetric", 47, 2, 56, 2, -1, 1),
    Sketcher.Constraint("Symmetric", 43, 2, 58, 2, -1, 1),
    Sketcher.Constraint("Symmetric", 43, 2, 46, 2, -2),
    Sketcher.Constraint("Symmetric", 2, 2, 6, 2, -1),
    Sketcher.Constraint("Symmetric", 1, 2, 7, 2, -1),
    Sketcher.Constraint("Symmetric", 0, 2, 8, 2, -1),
    Sketcher.Constraint("Symmetric", 4, 2, 10, 2, -1),
    Sketcher.Constraint("Symmetric", 14, 2, 24, 2, -1),
    Sketcher.Constraint("Symmetric", 13, 2, 25, 2, -1),
    Sketcher.Constraint("Symmetric", 12, 2, 26, 2, -1),
    Sketcher.Constraint("Symmetric", 16, 2, 28, 2, -1),
    Sketcher.Constraint("Symmetric", 20, 2, 30, 2, -1),
    Sketcher.Constraint("Symmetric", 19, 2, 31, 2, -1),
    Sketcher.Constraint("Symmetric", 18, 2, 32, 2, -1),
    Sketcher.Constraint("Symmetric", 22, 2, 34, 2, -1),
    Sketcher.Constraint("Symmetric", 38, 2, 48, 2, -1),
    Sketcher.Constraint("Symmetric", 37, 2, 49, 2, -1),
    Sketcher.Constraint("Symmetric", 36, 2, 50, 2, -1),
    Sketcher.Constraint("Symmetric", 40, 2, 52, 2, -1),
    Sketcher.Constraint("Parallel", 1, 4),
    Sketcher.Constraint("Parallel", 2, 5),
    Sketcher.Constraint("Parallel", 4, 7),
    Sketcher.Constraint("Parallel", 7, 10),
    Sketcher.Constraint("Parallel", 8, 11),
    Sketcher.Constraint("Parallel", 10, 13),
    Sketcher.Constraint("Parallel", 11, 14),
    Sketcher.Constraint("Parallel", 13, 16),
    Sketcher.Constraint("Parallel", 14, 17),
    Sketcher.Constraint("Parallel", 16, 19),
    Sketcher.Constraint("Parallel", 17, 20),
    Sketcher.Constraint("Parallel", 19, 22),
    Sketcher.Constraint("Parallel", 20, 23),
    Sketcher.Constraint("Parallel", 25, 28),
    Sketcher.Constraint("Parallel", 26, 29),
    Sketcher.Constraint("Parallel", 31, 34),
    Sketcher.Constraint("Parallel", 32, 35),
    Sketcher.Constraint("Parallel", 34, 37),
    Sketcher.Constraint("Parallel", 35, 38),
    Sketcher.Constraint("Parallel", 37, 40),
    Sketcher.Constraint("Parallel", 38, 41),
    Sketcher.Constraint("Parallel", 40, 43),
    Sketcher.Constraint("Parallel", 41, 44),
    Sketcher.Constraint("Parallel", 43, 46),
    Sketcher.Constraint("Parallel", 44, 47),
    Sketcher.Constraint("Parallel", 49, 52),
    Sketcher.Constraint("Parallel", 50, 53),
    Sketcher.Constraint("Parallel", 55, 58),
    Sketcher.Constraint("Parallel", 56, 59),
    Sketcher.Constraint("Parallel", 58, 61),
    Sketcher.Constraint("Parallel", 59, 62),
    Sketcher.Constraint("Parallel", 61, 64),
    Sketcher.Constraint("Parallel", 62, 65),
    Sketcher.Constraint("Parallel", 64, 67),
    Sketcher.Constraint("Parallel", 65, 68),
    Sketcher.Constraint("Parallel", 67, 70),
    Sketcher.Constraint("Parallel", 68, 71),
    Sketcher.Constraint("Horizontal", 1, 2, 4, 2),
    Sketcher.Constraint("Horizontal", 11, 2, 12, 2),
    Sketcher.Constraint("Horizontal", 10, 2, 13, 2),
    Sketcher.Constraint("Horizontal", 9, 2, 14, 2),
    Sketcher.Constraint("Horizontal", 13, 2, 16, 2),
    Sketcher.Constraint("Horizontal", 17, 2, 18, 2),
    Sketcher.Constraint("Horizontal", 16, 2, 19, 2),
    Sketcher.Constraint("Horizontal", 15, 2, 20, 2),
    Sketcher.Constraint("Horizontal", 19, 2, 22, 2),
    Sketcher.Constraint("Horizontal", 35, 2, 36, 2),
    Sketcher.Constraint("Horizontal", 34, 2, 37, 2),
    Sketcher.Constraint("Horizontal", 33, 2, 38, 2),
    Sketcher.Constraint("Horizontal", 37, 2, 40, 2),
    Sketcher.Constraint("Horizontal", 59, 2, 60, 2),
    Sketcher.Constraint("Horizontal", 58, 2, 61, 2),
    Sketcher.Constraint("Horizontal", 57, 2, 62, 2),
    Sketcher.Constraint("Horizontal", 61, 2, 64, 2),
    Sketcher.Constraint("Horizontal", 67, 2, 70, 2),
    Sketcher.Constraint("Vertical", 0, 2, 2, 2),
    Sketcher.Constraint("Vertical", 42, 2, 44, 2),
    Sketcher.Constraint("Vertical", 66, 2, 68, 2),
    Sketcher.Constraint("Equal", 9, 12),
    Sketcher.Constraint("Equal", 15, 18),
    Sketcher.Constraint("Equal", 33, 36),
    Sketcher.Constraint("Equal", 39, 42),
    Sketcher.Constraint("Equal", 57, 60),
    Sketcher.Constraint("Equal", 63, 66),
    Sketcher.Constraint("Equal", 41, 43),
    Sketcher.Constraint("Equal", 65, 67),
    Sketcher.Constraint("Angle", 1, Q("-60 deg")),
    Sketcher.Constraint("DistanceY", 1, 2, -1, 1, Q("29.5 mm")),
    Sketcher.Constraint("DistanceY", 0, 2, -1, 1, Q("26.65 mm")),
    Sketcher.Constraint("DistanceY", 42, 2, -1, 1, Q("30.775 mm")),
    Sketcher.Constraint("DistanceY", 66, 2, -1, 1, Q("17.275 mm")),
    Sketcher.Constraint("DistanceX", 0, 1, 0, 2, Q("3.290897 mm")),
    Sketcher.Constraint("DistanceX", -1, 1, 0, 2, Q("91.645448 mm")),
    Sketcher.Constraint("DistanceX", -1, 1, 12, 2, Q("59.645448 mm")),
    Sketcher.Constraint("DistanceX", -1, 1, 18, 2, Q("49.645448 mm")),
    Sketcher.Constraint("DistanceX", -1, 1, 36, 2, Q("17.645448 mm")),
    Sketcher.Constraint("DistanceX", 60, 2, -1, 1, Q("41.354552 mm")),
    Sketcher.Constraint("DistanceX", 66, 2, -1, 1, Q("71.094552 mm")),
])
pocket1 = body.newObject("PartDesign::Pocket", "Pocket")
pocket1.Profile = sketch4
pocket1.Length = 3
pocket1.Reversed = True
doc.recompute()

fillet2 = body.newObject("PartDesign::Fillet", "Fillet001")
fillet2.Base = (pocket1, edges_at(pocket1, [
    (84, -35.5, 2.5),
    (-34, 39.625, 2.5),
    (-46, 38.821, 2.5),
    (-46, -31.19, 2.5),
    (-34, -33.417, 2.5),
    (84, 35.5, 2.5),
]))
fillet2.Radius = 5

sketch5 = body.newObject("Sketcher::SketchObject", "Sketch004")
sketch5.AttachmentSupport = (doc.getObject("XY_Plane"), [""])
sketch5.MapMode = "FlatFace"
sketch5.AttachmentOffset = App.Placement(V(0, 0, 5), App.Rotation())
sketch5.addGeometry([
    Part.Circle(V(-40, 45.625, 0), V(0, 0, 1), 3.25),
    Part.Circle(V(-40, -45.917313, 0), V(0, 0, 1), 3.25),
    Part.Circle(V(90, -45.917313, 0), V(0, 0, 1), 3.25),
    Part.Circle(V(90, 45.625, 0), V(0, 0, 1), 3.25),
], False)
sketch5.addConstraint([
    Sketcher.Constraint("Equal", 0, 1),
    Sketcher.Constraint("Equal", 1, 2),
    Sketcher.Constraint("Equal", 2, 3),
    Sketcher.Constraint("Horizontal", 1, 3, 2, 3),
    Sketcher.Constraint("Horizontal", 0, 3, 3, 3),
    Sketcher.Constraint("Vertical", 0, 3, 1, 3),
    Sketcher.Constraint("Vertical", 2, 3, 3, 3),
    Sketcher.Constraint("Diameter", 0, Q("6.5 mm")),
    Sketcher.Constraint("DistanceX", 0, 3, -1, 1, Q("40 mm")),
    Sketcher.Constraint("DistanceX", -1, 1, 2, 3, Q("90 mm")),
    Sketcher.Constraint("DistanceY", -1, 1, 0, 3, Q("45.625 mm")),
    Sketcher.Constraint("DistanceY", 1, 3, -1, 1, Q("45.917313 mm")),
])
pocket2 = body.newObject("PartDesign::Pocket", "Pocket001")
pocket2.Profile = sketch5
pocket2.Length = 3
doc.recompute()

fillet3 = body.newObject("PartDesign::Fillet", "Fillet002")
fillet3.Base = (pocket2, edges_at(pocket2, [
    (-61.961, -28.228, 0),
    (-78.166, -22.686, 0),
    (-63.12, 9.655, 0),
    (8.657, 37.493, 0),
    (8.657, 37.493, 5),
    (74, -23.5, 0),
    (74, -23.5, 5),
    (-78.166, -22.686, 5),
    (64, 0, 0),
    (64, 0, 5),
    (47.633, -35.5, 0),
    (47.633, -35.5, 5),
    (74, 23.5, 0),
    (74, 23.5, 5),
    (84, 0, 0),
    (84, 0, 5),
    (42, 0, 0),
    (42, 0, 5),
    (28, -23.5, 0),
    (28, -23.5, 5),
    (6, 0, 5),
    (6, 0, 0),
    (11.476, 24.511, 0),
    (11.476, 24.511, 5),
    (-34.548, -21.111, 0),
    (-34.548, -21.111, 5),
    (-6, 0.811, 0),
    (-6, 0.811, 5),
    (-23.142, 27.625, 0),
    (-23.142, 27.625, 5),
    (-51.075, 6.638, 0),
    (-51.075, 6.638, 5),
    (16.002, 35.518, 5),
    (16.002, 35.518, 0),
    (64.586, -22.914, 5),
    (64.586, -22.914, 0),
    (16.002, -35.518, 5),
    (16.002, -35.518, 0),
    (64.586, 22.914, 5),
    (64.586, 22.914, 0),
    (83.414, 22.914, 5),
    (83.414, 22.914, 0),
    (83.414, -22.914, 5),
    (83.414, -22.914, 0),
    (41.414, -22.914, 5),
    (41.414, -22.914, 0),
    (41.414, 22.914, 5),
    (41.414, 22.914, 0),
    (6.785, 24.97, 5),
    (6.785, 24.97, 0),
    (6.785, -24.97, 5),
    (-61.961, -28.228, 5),
    (6.785, -24.97, 0),
    (-6.721, -25.541, 0),
    (-6.721, -25.541, 5),
    (-6.586, 27.039, 0),
    (-6.586, 27.039, 5),
    (-62.174, -15.139, 0),
    (-62.174, -15.139, 5),
    (-39.299, 27.348, 0),
    (-39.299, 27.348, 5),
    (0.244, -39.62, 5),
    (90, -51.917, 0),
    (90, -51.917, 5),
    (-46, 43.4, 5),
    (-40, 51.625, 5),
    (-40, 51.625, 0),
    (-46, 43.4, 0),
    (-40, -51.917, 0),
    (-34, -42.674, 0),
    (-40, -51.917, 5),
    (-34, -42.674, 5),
    (90, 51.625, 0),
    (84, 43.062, 0),
    (90, 51.625, 5),
    (84, 43.062, 5),
    (-14.5, 39.625, 5),
    (-46, -40.632, 0),
    (-46, -40.632, 5),
    (-14.591, -37.019, 5),
    (-14.591, -37.019, 0),
    (84, -43.209, 0),
    (84, -43.209, 5),
    (47.633, 35.5, 0),
    (47.633, 35.5, 5),
    (-47.845, 37.164, 5),
    (-47.845, 37.164, 0),
    (-34, 45.125, 0),
    (-34, 45.125, 5),
    (-47.155, -32.151, 5),
    (-47.155, -32.151, 0),
    (-32.197, -35.586, 5),
    (-32.197, -35.586, 0),
    (82.536, -36.964, 5),
    (82.536, -36.964, 0),
    (82.536, 36.964, 5),
    (82.536, 36.964, 0),
    (-46.353, 39.328, 5),
    (-46.353, 39.328, 0),
    (-32.536, 41.089, 5),
    (-32.536, 41.089, 0),
    (0.793, 39.572, 0),
    (0.793, 39.572, 5),
    (96, -0.146, 0),
    (8.657, -37.493, 0),
    (11.476, -24.511, 0),
    (15.207, -23.553, 0),
    (28, 23.5, 0),
    (15.207, 23.553, 0),
    (15.207, 23.553, 5),
    (28, 23.5, 5),
    (15.207, -23.553, 5),
    (11.476, -24.511, 5),
    (8.657, -37.493, 5),
    (96, -0.146, 5),
    (-14.5, 39.625, 0),
    (-63.12, 9.655, 5),
    (0.244, -39.62, 0),
]))
fillet3.Radius = 1

doc.recompute()
